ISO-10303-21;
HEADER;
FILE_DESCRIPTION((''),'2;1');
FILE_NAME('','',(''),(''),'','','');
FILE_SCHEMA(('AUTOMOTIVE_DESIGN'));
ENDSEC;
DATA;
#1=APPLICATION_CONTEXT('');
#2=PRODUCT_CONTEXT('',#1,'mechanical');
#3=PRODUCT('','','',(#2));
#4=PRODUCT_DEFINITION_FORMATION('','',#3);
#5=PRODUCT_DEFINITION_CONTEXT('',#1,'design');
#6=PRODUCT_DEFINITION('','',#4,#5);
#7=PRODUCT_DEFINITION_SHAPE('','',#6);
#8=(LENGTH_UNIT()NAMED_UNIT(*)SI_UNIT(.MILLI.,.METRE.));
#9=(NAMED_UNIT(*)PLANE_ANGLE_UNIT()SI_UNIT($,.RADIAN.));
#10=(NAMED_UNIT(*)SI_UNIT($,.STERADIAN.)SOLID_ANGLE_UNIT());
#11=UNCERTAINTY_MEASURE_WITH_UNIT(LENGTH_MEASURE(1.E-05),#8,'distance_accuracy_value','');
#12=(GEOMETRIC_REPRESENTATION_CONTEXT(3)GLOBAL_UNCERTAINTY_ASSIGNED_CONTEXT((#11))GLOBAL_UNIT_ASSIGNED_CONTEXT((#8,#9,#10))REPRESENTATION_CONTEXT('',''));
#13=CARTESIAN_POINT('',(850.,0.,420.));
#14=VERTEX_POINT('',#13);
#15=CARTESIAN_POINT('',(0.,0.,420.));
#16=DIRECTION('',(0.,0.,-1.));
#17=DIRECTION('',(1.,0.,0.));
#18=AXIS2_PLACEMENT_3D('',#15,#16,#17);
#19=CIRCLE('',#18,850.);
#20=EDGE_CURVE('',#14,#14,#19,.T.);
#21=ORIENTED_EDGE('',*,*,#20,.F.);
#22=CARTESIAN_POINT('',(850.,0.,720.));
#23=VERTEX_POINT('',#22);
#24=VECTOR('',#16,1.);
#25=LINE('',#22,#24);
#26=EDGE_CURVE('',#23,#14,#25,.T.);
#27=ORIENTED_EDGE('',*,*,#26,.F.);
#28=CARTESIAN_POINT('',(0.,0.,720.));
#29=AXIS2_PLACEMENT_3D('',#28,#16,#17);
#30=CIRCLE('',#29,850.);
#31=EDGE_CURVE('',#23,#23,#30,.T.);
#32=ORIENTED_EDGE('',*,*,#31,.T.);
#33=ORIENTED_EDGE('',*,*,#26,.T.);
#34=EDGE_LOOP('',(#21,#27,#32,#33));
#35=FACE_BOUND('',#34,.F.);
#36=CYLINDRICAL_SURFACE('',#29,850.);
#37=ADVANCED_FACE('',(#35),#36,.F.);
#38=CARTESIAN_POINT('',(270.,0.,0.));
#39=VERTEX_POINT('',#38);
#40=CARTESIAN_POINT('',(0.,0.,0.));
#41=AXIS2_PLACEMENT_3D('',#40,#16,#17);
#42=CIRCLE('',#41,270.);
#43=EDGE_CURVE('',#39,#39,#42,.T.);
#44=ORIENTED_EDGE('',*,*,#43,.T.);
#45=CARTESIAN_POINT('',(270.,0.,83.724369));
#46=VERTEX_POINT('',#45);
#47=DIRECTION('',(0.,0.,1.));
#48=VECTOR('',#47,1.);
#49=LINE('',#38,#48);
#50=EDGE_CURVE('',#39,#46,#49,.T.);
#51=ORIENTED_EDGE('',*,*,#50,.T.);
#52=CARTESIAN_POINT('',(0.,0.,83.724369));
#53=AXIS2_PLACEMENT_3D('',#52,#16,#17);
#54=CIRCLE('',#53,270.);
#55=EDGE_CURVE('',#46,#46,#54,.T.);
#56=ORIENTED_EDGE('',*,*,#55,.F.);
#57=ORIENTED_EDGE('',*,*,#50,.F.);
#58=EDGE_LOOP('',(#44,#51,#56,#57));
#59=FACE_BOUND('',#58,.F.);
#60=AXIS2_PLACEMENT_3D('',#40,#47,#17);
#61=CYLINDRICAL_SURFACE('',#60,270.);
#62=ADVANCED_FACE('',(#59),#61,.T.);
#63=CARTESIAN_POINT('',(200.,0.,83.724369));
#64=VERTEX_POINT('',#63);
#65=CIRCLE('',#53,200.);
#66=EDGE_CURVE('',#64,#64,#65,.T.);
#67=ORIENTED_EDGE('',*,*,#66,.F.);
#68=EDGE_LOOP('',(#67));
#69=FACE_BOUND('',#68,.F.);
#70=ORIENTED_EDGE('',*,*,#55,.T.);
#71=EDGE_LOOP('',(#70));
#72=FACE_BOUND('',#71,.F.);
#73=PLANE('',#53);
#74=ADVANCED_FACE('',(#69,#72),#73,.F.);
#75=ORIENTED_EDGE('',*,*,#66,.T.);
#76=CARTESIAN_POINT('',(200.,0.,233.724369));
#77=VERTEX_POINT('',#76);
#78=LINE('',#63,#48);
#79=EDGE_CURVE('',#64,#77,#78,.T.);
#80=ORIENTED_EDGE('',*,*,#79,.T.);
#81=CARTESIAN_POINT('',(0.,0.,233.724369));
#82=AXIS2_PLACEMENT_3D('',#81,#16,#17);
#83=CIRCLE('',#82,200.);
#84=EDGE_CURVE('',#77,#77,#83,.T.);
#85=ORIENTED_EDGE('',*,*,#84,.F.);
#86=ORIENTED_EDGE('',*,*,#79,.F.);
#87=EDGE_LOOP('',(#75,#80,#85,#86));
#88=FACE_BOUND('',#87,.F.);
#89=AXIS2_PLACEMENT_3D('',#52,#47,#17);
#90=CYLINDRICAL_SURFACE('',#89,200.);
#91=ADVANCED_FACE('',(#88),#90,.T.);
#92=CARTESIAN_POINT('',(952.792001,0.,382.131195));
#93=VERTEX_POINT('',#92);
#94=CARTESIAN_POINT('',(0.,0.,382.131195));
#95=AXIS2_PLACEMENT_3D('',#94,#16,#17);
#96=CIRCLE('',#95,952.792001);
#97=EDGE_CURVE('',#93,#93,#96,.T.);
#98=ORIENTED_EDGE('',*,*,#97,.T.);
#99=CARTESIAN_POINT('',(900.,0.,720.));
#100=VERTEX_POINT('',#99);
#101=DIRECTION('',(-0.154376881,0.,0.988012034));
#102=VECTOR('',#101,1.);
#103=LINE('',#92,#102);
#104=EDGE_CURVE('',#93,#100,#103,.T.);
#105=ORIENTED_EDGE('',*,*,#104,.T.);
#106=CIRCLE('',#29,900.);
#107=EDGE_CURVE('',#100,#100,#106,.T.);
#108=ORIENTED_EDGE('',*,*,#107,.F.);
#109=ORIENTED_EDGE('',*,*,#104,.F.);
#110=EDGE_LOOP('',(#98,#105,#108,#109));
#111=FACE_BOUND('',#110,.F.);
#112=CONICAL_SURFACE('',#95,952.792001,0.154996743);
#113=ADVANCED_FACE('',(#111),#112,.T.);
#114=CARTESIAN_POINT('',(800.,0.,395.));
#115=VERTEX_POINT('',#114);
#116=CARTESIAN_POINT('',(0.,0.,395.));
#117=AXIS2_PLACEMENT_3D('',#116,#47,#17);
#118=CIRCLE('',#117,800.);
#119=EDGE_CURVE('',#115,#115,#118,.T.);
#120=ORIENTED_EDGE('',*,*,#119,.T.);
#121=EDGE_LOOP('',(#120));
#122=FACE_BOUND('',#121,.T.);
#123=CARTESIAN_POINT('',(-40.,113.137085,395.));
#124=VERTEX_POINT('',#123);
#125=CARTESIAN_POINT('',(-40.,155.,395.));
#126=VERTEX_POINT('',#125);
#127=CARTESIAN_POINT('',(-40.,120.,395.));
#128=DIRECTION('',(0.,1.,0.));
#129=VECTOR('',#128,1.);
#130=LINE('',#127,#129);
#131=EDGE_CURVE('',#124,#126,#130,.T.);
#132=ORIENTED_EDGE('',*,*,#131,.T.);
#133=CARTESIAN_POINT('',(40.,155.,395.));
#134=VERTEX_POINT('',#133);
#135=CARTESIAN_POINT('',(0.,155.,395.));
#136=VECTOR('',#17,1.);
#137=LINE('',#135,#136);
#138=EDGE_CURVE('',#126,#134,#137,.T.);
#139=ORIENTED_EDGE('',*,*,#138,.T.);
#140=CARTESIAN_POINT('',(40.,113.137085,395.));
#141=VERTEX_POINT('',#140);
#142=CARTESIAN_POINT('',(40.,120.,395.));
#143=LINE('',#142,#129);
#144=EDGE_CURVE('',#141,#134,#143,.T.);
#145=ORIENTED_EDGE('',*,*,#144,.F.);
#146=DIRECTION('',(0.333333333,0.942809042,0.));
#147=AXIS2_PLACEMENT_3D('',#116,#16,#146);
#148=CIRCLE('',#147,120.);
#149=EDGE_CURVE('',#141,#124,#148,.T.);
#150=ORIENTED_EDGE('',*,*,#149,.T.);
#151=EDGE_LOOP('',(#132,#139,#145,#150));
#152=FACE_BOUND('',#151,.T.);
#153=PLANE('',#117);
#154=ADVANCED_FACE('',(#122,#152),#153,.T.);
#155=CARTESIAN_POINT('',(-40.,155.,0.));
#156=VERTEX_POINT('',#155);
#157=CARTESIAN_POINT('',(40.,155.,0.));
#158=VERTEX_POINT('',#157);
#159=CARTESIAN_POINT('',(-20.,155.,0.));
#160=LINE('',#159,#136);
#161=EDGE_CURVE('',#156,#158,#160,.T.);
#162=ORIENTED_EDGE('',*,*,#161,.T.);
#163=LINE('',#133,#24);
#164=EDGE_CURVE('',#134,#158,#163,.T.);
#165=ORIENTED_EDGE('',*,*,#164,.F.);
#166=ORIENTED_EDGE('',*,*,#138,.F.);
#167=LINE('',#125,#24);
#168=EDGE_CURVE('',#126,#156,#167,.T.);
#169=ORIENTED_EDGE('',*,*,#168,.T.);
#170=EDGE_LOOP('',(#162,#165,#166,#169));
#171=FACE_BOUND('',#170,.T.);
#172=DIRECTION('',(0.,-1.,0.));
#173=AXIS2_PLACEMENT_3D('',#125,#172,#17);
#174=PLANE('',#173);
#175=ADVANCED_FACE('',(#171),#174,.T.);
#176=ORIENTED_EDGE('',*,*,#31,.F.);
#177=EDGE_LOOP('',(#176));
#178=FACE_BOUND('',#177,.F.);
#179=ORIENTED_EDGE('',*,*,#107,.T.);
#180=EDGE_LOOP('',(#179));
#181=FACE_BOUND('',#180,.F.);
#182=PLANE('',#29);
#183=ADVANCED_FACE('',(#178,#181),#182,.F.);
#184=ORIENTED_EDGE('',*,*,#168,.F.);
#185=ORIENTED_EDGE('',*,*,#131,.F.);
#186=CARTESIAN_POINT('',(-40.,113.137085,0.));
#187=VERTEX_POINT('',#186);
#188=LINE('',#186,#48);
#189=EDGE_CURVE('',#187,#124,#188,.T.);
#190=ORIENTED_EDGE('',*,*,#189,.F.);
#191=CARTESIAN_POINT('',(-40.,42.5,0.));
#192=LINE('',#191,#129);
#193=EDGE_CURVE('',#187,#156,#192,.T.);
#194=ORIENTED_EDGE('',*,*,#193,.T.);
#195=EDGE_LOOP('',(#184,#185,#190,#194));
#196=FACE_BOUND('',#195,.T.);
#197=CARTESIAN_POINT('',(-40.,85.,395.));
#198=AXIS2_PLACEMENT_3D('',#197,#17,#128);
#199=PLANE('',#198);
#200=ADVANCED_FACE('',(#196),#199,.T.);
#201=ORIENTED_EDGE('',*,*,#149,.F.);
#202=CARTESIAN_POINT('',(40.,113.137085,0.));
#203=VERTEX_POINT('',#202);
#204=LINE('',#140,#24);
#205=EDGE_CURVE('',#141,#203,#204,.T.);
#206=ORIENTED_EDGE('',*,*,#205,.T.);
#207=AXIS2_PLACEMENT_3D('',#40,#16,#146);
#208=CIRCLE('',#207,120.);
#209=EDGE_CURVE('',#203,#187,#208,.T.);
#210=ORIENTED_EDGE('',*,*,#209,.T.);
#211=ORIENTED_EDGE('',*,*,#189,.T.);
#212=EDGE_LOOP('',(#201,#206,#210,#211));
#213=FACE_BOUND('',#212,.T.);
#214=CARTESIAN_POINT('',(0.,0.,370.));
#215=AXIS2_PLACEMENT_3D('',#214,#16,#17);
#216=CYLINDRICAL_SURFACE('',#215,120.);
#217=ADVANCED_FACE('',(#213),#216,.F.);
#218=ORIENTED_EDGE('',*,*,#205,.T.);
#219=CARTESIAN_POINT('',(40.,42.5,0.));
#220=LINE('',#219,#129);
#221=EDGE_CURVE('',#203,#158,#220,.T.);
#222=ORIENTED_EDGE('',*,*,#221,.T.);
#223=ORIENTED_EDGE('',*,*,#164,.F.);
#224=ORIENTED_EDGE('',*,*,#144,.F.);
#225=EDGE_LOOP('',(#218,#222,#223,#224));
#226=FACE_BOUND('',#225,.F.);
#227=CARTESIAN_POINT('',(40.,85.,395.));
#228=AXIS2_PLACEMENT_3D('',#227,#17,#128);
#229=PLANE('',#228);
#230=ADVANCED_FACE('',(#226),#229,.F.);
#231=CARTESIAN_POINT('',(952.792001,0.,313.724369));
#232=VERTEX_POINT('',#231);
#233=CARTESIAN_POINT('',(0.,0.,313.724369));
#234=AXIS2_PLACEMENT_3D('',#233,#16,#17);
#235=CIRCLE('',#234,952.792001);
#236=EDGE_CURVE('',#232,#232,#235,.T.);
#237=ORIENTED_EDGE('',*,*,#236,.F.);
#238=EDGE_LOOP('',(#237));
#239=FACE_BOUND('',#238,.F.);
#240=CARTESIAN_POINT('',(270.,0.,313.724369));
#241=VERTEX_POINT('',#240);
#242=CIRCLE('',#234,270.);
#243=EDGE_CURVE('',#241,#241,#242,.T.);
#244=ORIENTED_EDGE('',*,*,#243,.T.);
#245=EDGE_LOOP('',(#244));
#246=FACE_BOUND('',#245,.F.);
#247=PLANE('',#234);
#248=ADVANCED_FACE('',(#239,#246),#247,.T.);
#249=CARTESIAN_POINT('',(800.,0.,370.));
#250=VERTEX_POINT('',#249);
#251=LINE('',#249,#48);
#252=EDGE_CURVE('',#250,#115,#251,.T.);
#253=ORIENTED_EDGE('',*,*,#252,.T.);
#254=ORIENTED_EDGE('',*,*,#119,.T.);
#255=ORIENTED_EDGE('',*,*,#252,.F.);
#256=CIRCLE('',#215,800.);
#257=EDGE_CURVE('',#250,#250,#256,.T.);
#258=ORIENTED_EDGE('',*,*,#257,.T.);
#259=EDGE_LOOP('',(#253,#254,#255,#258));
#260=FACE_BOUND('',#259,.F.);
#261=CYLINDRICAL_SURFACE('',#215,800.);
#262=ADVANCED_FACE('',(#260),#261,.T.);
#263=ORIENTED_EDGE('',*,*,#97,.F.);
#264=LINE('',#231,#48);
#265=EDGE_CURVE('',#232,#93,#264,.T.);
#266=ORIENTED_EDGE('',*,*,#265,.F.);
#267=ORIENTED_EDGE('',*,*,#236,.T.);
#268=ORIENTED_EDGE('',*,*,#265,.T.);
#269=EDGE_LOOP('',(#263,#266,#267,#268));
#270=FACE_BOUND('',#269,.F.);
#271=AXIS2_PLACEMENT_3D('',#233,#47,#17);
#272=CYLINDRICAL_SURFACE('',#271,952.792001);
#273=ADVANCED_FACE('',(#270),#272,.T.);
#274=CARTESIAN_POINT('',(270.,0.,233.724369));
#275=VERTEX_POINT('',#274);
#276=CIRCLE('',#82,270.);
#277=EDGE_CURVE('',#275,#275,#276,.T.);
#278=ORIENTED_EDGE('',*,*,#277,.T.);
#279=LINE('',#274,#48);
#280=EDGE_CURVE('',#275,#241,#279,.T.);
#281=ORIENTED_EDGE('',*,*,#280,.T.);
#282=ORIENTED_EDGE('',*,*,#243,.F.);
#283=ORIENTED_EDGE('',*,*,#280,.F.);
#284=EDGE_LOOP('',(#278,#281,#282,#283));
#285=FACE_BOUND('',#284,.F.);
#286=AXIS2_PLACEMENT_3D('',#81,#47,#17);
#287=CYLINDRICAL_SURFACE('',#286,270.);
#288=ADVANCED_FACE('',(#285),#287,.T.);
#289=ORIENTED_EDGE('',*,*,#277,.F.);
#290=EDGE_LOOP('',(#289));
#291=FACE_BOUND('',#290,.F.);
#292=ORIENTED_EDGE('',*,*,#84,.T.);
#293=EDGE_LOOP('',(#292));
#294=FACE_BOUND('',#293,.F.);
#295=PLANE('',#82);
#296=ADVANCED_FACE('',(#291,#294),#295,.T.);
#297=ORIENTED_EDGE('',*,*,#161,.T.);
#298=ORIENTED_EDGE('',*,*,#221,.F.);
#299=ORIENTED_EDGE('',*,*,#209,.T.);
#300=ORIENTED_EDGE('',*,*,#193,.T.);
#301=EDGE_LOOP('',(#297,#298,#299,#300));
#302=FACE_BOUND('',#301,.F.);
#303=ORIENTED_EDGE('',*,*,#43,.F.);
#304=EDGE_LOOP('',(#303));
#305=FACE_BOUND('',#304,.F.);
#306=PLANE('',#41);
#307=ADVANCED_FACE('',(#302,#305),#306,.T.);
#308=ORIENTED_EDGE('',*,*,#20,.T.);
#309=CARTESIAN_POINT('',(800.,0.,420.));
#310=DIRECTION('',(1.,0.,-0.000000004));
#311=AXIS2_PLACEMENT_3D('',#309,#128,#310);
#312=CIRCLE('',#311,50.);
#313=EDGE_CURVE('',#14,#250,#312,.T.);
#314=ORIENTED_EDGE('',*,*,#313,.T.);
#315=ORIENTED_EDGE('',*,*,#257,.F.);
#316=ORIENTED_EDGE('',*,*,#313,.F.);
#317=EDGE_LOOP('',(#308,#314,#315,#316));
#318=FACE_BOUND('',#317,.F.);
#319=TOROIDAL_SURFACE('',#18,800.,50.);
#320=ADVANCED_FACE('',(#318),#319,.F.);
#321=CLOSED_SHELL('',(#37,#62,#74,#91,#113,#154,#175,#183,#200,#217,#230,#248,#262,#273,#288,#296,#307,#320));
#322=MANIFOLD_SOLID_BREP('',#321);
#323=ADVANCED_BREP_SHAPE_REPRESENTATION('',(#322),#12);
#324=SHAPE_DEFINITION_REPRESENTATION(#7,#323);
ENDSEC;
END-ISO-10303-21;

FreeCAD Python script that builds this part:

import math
import FreeCAD as App
import Part
import Sketcher

doc = App.newDocument("Part")
params = doc.addObject("Spreadsheet::Sheet", "Params")
for row, (alias, value) in enumerate([
    ("sketch1_radius", "50 mm"),
    ("sketch1_width", "150 mm"),
    ("sketch1_width2", "70 mm"),
    ("sketch1_width3", "50 mm"),
    ("sketch1_width4", "680 mm"),
    ("revolution_angle", "360 deg"),
    ("sketch2_diameter", "1600 mm"),
    ("sketch2_diameter2", "240 mm"),
    ("pad1_length", "25 mm"),
    ("sketch3_width", "80 mm"),
    ("sketch3_height", "70 mm"),
], start=1):
    params.set(f"A{row}", alias)
    params.set(f"B{row}", "=" + value)
    params.setAlias(f"B{row}", alias)

body = doc.addObject("PartDesign::Body", "Body")

# Sketch on XZ plane
sketch1 = body.newObject("Sketcher::SketchObject", "Sketch")
sketch1.AttachmentSupport = (doc.getObject("XZ_Plane"), [""])
sketch1.MapMode = "FlatFace"
sketch1.addGeometry(Part.LineSegment(App.Vector(120, 370, 0), App.Vector(120, 0, 0)), False)
sketch1.addGeometry(Part.LineSegment(App.Vector(120, 0, 0), App.Vector(270, 0, 0)), False)
sketch1.addGeometry(Part.LineSegment(App.Vector(270, 0, 0), App.Vector(270, 84, 0)), False)
sketch1.addGeometry(Part.LineSegment(App.Vector(270, 84, 0), App.Vector(200, 84, 0)), False)
sketch1.addGeometry(Part.LineSegment(App.Vector(200, 84, 0), App.Vector(200, 234, 0)), False)
sketch1.addGeometry(Part.LineSegment(App.Vector(200, 234, 0), App.Vector(270, 234, 0)), False)
sketch1.addGeometry(Part.LineSegment(App.Vector(270, 234, 0), App.Vector(270, 314, 0)), False)
sketch1.addGeometry(Part.LineSegment(App.Vector(270, 314, 0), App.Vector(953, 314, 0)), False)
sketch1.addGeometry(Part.LineSegment(App.Vector(953, 314, 0), App.Vector(953, 382, 0)), False)
sketch1.addGeometry(Part.LineSegment(App.Vector(953, 382, 0), App.Vector(900, 720, 0)), False)
sketch1.addGeometry(Part.LineSegment(App.Vector(900, 720, 0), App.Vector(850, 720, 0)), False)
sketch1.addGeometry(Part.LineSegment(App.Vector(850, 720, 0), App.Vector(850, 420, 0)), False)
sketch1.addGeometry(Part.ArcOfCircle(Part.Circle(App.Vector(800, 420, 0), App.Vector(0, 0, 1), 50), math.radians(-90), math.radians(0)), False)
sketch1.addGeometry(Part.LineSegment(App.Vector(800, 370, 0), App.Vector(120, 370, 0)), False)
sketch1.addConstraint(Sketcher.Constraint("Coincident", 0, 2, 1, 1))
sketch1.addConstraint(Sketcher.Constraint("Coincident", 1, 2, 2, 1))
sketch1.addConstraint(Sketcher.Constraint("Coincident", 2, 2, 3, 1))
sketch1.addConstraint(Sketcher.Constraint("Coincident", 3, 2, 4, 1))
sketch1.addConstraint(Sketcher.Constraint("Coincident", 4, 2, 5, 1))
sketch1.addConstraint(Sketcher.Constraint("Coincident", 5, 2, 6, 1))
sketch1.addConstraint(Sketcher.Constraint("Coincident", 6, 2, 7, 1))
sketch1.addConstraint(Sketcher.Constraint("Coincident", 7, 2, 8, 1))
sketch1.addConstraint(Sketcher.Constraint("Coincident", 8, 2, 9, 1))
sketch1.addConstraint(Sketcher.Constraint("Coincident", 9, 2, 10, 1))
sketch1.addConstraint(Sketcher.Constraint("Coincident", 10, 2, 11, 1))
sketch1.addConstraint(Sketcher.Constraint("Tangent", 11, 2, 12, 2))
sketch1.addConstraint(Sketcher.Constraint("Tangent", 12, 1, 13, 1))
sketch1.addConstraint(Sketcher.Constraint("Coincident", 13, 2, 0, 1))
sketch1.addConstraint(Sketcher.Constraint("Vertical", 0))
sketch1.addConstraint(Sketcher.Constraint("Horizontal", 1))
sketch1.addConstraint(Sketcher.Constraint("Vertical", 2))
sketch1.addConstraint(Sketcher.Constraint("Horizontal", 3))
sketch1.addConstraint(Sketcher.Constraint("Vertical", 4))
sketch1.addConstraint(Sketcher.Constraint("Horizontal", 5))
sketch1.addConstraint(Sketcher.Constraint("Vertical", 6))
sketch1.addConstraint(Sketcher.Constraint("Horizontal", 7))
sketch1.addConstraint(Sketcher.Constraint("Vertical", 8))
sketch1.addConstraint(Sketcher.Constraint("Horizontal", 10))
sketch1.addConstraint(Sketcher.Constraint("Vertical", 11))
sketch1.addConstraint(Sketcher.Constraint("Horizontal", 13))
sketch1.addConstraint(Sketcher.Constraint("PointOnObject", 0, 2, -1))
sketch1.addConstraint(Sketcher.Constraint("Vertical", 2, 2, 5, 2))
sketch1.addConstraint(Sketcher.Constraint("Equal", 1, 4))
sketch1.addConstraint(Sketcher.Constraint("Radius", 12, 50.0))
sketch1.addConstraint(Sketcher.Constraint("DistanceX", 1, 1, 1, 2, 150.0))
sketch1.addConstraint(Sketcher.Constraint("DistanceX", 3, 2, 3, 1, 70.0))
sketch1.addConstraint(Sketcher.Constraint("DistanceX", 10, 2, 10, 1, 50.0))
sketch1.addConstraint(Sketcher.Constraint("DistanceX", 13, 2, 13, 1, 680.0))
sketch1.addConstraint(Sketcher.Constraint("DistanceY", 0, 2, 0, 1, 370.0))
sketch1.addConstraint(Sketcher.Constraint("DistanceY", 6, 1, 6, 2, 80.0))
sketch1.addConstraint(Sketcher.Constraint("DistanceY", 11, 2, 11, 1, 300.0))
sketch1.addConstraint(Sketcher.Constraint("DistanceX", -1, 1, 12, 3, 800.0))
sketch1.addConstraint(Sketcher.Constraint("DistanceX", 7, 1, 7, 2, 682.792001))
sketch1.addConstraint(Sketcher.Constraint("DistanceY", 2, 1, 2, 2, 83.724369))
sketch1.addConstraint(Sketcher.Constraint("Distance", 9, 341.96831))
sketch1.setExpression("Constraints[29]", "Params.sketch1_radius")
sketch1.setExpression("Constraints[30]", "Params.sketch1_width")
sketch1.setExpression("Constraints[31]", "Params.sketch1_width2")
sketch1.setExpression("Constraints[32]", "Params.sketch1_width3")
sketch1.setExpression("Constraints[33]", "Params.sketch1_width4")
revolution = body.newObject("PartDesign::Revolution", "Revolution")
revolution.Profile = sketch1
revolution.ReferenceAxis = (sketch1, ["V_Axis"])
revolution.setExpression("Angle", "Params.revolution_angle")

# Sketch on XY plane
sketch2 = body.newObject("Sketcher::SketchObject", "Sketch001")
sketch2.AttachmentSupport = (doc.getObject("XY_Plane"), [""])
sketch2.MapMode = "FlatFace"
sketch2.AttachmentOffset = App.Placement(App.Vector(0, 0, 370), App.Rotation())
sketch2.addGeometry(Part.Circle(App.Vector(0, 0, 0), App.Vector(0, 0, 1), 800), False)
sketch2.addGeometry(Part.Circle(App.Vector(0, 0, 0), App.Vector(0, 0, 1), 120), False)
sketch2.addConstraint(Sketcher.Constraint("Coincident", 0, 3, -1, 1))
sketch2.addConstraint(Sketcher.Constraint("Coincident", 1, 3, -1, 1))
sketch2.addConstraint(Sketcher.Constraint("Diameter", 0, 1600.0))
sketch2.addConstraint(Sketcher.Constraint("Diameter", 1, 240.0))
sketch2.setExpression("Constraints[2]", "Params.sketch2_diameter")
sketch2.setExpression("Constraints[3]", "Params.sketch2_diameter2")
pad1 = body.newObject("PartDesign::Pad", "Pad")
pad1.Profile = sketch2
pad1.setExpression("Length", "Params.pad1_length")

# Sketch on XY plane
sketch3 = body.newObject("Sketcher::SketchObject", "Sketch002")
sketch3.AttachmentSupport = (doc.getObject("XY_Plane"), [""])
sketch3.MapMode = "FlatFace"
sketch3.AttachmentOffset = App.Placement(App.Vector(0, 0, 395), App.Rotation())
sketch3.addGeometry(Part.LineSegment(App.Vector(-40, 155, 0), App.Vector(-40, 85, 0)), False)
sketch3.addGeometry(Part.LineSegment(App.Vector(-40, 85, 0), App.Vector(40, 85, 0)), False)
sketch3.addGeometry(Part.LineSegment(App.Vector(40, 85, 0), App.Vector(40, 155, 0)), False)
sketch3.addGeometry(Part.LineSegment(App.Vector(40, 155, 0), App.Vector(-40, 155, 0)), False)
sketch3.addConstraint(Sketcher.Constraint("Coincident", 0, 2, 1, 1))
sketch3.addConstraint(Sketcher.Constraint("Coincident", 1, 2, 2, 1))
sketch3.addConstraint(Sketcher.Constraint("Coincident", 2, 2, 3, 1))
sketch3.addConstraint(Sketcher.Constraint("Coincident", 3, 2, 0, 1))
sketch3.addConstraint(Sketcher.Constraint("Vertical", 0))
sketch3.addConstraint(Sketcher.Constraint("Horizontal", 1))
sketch3.addConstraint(Sketcher.Constraint("Vertical", 2))
sketch3.addConstraint(Sketcher.Constraint("Horizontal", 3))
sketch3.addConstraint(Sketcher.Constraint("DistanceX", 1, 1, 1, 2, 80.0))
sketch3.addConstraint(Sketcher.Constraint("DistanceY", 0, 2, 0, 1, 70.0))
sketch3.addConstraint(Sketcher.Constraint("DistanceX", 0, 2, -1, 1, 40.0))
sketch3.addConstraint(Sketcher.Constraint("DistanceY", -1, 1, 0, 2, 85.0))
sketch3.setExpression("Constraints[8]", "Params.sketch3_width")
sketch3.setExpression("Constraints[9]", "Params.sketch3_height")
pocket1 = body.newObject("PartDesign::Pocket", "Pocket")
pocket1.Profile = sketch3
pocket1.Type = "ThroughAll"

doc.recompute()
